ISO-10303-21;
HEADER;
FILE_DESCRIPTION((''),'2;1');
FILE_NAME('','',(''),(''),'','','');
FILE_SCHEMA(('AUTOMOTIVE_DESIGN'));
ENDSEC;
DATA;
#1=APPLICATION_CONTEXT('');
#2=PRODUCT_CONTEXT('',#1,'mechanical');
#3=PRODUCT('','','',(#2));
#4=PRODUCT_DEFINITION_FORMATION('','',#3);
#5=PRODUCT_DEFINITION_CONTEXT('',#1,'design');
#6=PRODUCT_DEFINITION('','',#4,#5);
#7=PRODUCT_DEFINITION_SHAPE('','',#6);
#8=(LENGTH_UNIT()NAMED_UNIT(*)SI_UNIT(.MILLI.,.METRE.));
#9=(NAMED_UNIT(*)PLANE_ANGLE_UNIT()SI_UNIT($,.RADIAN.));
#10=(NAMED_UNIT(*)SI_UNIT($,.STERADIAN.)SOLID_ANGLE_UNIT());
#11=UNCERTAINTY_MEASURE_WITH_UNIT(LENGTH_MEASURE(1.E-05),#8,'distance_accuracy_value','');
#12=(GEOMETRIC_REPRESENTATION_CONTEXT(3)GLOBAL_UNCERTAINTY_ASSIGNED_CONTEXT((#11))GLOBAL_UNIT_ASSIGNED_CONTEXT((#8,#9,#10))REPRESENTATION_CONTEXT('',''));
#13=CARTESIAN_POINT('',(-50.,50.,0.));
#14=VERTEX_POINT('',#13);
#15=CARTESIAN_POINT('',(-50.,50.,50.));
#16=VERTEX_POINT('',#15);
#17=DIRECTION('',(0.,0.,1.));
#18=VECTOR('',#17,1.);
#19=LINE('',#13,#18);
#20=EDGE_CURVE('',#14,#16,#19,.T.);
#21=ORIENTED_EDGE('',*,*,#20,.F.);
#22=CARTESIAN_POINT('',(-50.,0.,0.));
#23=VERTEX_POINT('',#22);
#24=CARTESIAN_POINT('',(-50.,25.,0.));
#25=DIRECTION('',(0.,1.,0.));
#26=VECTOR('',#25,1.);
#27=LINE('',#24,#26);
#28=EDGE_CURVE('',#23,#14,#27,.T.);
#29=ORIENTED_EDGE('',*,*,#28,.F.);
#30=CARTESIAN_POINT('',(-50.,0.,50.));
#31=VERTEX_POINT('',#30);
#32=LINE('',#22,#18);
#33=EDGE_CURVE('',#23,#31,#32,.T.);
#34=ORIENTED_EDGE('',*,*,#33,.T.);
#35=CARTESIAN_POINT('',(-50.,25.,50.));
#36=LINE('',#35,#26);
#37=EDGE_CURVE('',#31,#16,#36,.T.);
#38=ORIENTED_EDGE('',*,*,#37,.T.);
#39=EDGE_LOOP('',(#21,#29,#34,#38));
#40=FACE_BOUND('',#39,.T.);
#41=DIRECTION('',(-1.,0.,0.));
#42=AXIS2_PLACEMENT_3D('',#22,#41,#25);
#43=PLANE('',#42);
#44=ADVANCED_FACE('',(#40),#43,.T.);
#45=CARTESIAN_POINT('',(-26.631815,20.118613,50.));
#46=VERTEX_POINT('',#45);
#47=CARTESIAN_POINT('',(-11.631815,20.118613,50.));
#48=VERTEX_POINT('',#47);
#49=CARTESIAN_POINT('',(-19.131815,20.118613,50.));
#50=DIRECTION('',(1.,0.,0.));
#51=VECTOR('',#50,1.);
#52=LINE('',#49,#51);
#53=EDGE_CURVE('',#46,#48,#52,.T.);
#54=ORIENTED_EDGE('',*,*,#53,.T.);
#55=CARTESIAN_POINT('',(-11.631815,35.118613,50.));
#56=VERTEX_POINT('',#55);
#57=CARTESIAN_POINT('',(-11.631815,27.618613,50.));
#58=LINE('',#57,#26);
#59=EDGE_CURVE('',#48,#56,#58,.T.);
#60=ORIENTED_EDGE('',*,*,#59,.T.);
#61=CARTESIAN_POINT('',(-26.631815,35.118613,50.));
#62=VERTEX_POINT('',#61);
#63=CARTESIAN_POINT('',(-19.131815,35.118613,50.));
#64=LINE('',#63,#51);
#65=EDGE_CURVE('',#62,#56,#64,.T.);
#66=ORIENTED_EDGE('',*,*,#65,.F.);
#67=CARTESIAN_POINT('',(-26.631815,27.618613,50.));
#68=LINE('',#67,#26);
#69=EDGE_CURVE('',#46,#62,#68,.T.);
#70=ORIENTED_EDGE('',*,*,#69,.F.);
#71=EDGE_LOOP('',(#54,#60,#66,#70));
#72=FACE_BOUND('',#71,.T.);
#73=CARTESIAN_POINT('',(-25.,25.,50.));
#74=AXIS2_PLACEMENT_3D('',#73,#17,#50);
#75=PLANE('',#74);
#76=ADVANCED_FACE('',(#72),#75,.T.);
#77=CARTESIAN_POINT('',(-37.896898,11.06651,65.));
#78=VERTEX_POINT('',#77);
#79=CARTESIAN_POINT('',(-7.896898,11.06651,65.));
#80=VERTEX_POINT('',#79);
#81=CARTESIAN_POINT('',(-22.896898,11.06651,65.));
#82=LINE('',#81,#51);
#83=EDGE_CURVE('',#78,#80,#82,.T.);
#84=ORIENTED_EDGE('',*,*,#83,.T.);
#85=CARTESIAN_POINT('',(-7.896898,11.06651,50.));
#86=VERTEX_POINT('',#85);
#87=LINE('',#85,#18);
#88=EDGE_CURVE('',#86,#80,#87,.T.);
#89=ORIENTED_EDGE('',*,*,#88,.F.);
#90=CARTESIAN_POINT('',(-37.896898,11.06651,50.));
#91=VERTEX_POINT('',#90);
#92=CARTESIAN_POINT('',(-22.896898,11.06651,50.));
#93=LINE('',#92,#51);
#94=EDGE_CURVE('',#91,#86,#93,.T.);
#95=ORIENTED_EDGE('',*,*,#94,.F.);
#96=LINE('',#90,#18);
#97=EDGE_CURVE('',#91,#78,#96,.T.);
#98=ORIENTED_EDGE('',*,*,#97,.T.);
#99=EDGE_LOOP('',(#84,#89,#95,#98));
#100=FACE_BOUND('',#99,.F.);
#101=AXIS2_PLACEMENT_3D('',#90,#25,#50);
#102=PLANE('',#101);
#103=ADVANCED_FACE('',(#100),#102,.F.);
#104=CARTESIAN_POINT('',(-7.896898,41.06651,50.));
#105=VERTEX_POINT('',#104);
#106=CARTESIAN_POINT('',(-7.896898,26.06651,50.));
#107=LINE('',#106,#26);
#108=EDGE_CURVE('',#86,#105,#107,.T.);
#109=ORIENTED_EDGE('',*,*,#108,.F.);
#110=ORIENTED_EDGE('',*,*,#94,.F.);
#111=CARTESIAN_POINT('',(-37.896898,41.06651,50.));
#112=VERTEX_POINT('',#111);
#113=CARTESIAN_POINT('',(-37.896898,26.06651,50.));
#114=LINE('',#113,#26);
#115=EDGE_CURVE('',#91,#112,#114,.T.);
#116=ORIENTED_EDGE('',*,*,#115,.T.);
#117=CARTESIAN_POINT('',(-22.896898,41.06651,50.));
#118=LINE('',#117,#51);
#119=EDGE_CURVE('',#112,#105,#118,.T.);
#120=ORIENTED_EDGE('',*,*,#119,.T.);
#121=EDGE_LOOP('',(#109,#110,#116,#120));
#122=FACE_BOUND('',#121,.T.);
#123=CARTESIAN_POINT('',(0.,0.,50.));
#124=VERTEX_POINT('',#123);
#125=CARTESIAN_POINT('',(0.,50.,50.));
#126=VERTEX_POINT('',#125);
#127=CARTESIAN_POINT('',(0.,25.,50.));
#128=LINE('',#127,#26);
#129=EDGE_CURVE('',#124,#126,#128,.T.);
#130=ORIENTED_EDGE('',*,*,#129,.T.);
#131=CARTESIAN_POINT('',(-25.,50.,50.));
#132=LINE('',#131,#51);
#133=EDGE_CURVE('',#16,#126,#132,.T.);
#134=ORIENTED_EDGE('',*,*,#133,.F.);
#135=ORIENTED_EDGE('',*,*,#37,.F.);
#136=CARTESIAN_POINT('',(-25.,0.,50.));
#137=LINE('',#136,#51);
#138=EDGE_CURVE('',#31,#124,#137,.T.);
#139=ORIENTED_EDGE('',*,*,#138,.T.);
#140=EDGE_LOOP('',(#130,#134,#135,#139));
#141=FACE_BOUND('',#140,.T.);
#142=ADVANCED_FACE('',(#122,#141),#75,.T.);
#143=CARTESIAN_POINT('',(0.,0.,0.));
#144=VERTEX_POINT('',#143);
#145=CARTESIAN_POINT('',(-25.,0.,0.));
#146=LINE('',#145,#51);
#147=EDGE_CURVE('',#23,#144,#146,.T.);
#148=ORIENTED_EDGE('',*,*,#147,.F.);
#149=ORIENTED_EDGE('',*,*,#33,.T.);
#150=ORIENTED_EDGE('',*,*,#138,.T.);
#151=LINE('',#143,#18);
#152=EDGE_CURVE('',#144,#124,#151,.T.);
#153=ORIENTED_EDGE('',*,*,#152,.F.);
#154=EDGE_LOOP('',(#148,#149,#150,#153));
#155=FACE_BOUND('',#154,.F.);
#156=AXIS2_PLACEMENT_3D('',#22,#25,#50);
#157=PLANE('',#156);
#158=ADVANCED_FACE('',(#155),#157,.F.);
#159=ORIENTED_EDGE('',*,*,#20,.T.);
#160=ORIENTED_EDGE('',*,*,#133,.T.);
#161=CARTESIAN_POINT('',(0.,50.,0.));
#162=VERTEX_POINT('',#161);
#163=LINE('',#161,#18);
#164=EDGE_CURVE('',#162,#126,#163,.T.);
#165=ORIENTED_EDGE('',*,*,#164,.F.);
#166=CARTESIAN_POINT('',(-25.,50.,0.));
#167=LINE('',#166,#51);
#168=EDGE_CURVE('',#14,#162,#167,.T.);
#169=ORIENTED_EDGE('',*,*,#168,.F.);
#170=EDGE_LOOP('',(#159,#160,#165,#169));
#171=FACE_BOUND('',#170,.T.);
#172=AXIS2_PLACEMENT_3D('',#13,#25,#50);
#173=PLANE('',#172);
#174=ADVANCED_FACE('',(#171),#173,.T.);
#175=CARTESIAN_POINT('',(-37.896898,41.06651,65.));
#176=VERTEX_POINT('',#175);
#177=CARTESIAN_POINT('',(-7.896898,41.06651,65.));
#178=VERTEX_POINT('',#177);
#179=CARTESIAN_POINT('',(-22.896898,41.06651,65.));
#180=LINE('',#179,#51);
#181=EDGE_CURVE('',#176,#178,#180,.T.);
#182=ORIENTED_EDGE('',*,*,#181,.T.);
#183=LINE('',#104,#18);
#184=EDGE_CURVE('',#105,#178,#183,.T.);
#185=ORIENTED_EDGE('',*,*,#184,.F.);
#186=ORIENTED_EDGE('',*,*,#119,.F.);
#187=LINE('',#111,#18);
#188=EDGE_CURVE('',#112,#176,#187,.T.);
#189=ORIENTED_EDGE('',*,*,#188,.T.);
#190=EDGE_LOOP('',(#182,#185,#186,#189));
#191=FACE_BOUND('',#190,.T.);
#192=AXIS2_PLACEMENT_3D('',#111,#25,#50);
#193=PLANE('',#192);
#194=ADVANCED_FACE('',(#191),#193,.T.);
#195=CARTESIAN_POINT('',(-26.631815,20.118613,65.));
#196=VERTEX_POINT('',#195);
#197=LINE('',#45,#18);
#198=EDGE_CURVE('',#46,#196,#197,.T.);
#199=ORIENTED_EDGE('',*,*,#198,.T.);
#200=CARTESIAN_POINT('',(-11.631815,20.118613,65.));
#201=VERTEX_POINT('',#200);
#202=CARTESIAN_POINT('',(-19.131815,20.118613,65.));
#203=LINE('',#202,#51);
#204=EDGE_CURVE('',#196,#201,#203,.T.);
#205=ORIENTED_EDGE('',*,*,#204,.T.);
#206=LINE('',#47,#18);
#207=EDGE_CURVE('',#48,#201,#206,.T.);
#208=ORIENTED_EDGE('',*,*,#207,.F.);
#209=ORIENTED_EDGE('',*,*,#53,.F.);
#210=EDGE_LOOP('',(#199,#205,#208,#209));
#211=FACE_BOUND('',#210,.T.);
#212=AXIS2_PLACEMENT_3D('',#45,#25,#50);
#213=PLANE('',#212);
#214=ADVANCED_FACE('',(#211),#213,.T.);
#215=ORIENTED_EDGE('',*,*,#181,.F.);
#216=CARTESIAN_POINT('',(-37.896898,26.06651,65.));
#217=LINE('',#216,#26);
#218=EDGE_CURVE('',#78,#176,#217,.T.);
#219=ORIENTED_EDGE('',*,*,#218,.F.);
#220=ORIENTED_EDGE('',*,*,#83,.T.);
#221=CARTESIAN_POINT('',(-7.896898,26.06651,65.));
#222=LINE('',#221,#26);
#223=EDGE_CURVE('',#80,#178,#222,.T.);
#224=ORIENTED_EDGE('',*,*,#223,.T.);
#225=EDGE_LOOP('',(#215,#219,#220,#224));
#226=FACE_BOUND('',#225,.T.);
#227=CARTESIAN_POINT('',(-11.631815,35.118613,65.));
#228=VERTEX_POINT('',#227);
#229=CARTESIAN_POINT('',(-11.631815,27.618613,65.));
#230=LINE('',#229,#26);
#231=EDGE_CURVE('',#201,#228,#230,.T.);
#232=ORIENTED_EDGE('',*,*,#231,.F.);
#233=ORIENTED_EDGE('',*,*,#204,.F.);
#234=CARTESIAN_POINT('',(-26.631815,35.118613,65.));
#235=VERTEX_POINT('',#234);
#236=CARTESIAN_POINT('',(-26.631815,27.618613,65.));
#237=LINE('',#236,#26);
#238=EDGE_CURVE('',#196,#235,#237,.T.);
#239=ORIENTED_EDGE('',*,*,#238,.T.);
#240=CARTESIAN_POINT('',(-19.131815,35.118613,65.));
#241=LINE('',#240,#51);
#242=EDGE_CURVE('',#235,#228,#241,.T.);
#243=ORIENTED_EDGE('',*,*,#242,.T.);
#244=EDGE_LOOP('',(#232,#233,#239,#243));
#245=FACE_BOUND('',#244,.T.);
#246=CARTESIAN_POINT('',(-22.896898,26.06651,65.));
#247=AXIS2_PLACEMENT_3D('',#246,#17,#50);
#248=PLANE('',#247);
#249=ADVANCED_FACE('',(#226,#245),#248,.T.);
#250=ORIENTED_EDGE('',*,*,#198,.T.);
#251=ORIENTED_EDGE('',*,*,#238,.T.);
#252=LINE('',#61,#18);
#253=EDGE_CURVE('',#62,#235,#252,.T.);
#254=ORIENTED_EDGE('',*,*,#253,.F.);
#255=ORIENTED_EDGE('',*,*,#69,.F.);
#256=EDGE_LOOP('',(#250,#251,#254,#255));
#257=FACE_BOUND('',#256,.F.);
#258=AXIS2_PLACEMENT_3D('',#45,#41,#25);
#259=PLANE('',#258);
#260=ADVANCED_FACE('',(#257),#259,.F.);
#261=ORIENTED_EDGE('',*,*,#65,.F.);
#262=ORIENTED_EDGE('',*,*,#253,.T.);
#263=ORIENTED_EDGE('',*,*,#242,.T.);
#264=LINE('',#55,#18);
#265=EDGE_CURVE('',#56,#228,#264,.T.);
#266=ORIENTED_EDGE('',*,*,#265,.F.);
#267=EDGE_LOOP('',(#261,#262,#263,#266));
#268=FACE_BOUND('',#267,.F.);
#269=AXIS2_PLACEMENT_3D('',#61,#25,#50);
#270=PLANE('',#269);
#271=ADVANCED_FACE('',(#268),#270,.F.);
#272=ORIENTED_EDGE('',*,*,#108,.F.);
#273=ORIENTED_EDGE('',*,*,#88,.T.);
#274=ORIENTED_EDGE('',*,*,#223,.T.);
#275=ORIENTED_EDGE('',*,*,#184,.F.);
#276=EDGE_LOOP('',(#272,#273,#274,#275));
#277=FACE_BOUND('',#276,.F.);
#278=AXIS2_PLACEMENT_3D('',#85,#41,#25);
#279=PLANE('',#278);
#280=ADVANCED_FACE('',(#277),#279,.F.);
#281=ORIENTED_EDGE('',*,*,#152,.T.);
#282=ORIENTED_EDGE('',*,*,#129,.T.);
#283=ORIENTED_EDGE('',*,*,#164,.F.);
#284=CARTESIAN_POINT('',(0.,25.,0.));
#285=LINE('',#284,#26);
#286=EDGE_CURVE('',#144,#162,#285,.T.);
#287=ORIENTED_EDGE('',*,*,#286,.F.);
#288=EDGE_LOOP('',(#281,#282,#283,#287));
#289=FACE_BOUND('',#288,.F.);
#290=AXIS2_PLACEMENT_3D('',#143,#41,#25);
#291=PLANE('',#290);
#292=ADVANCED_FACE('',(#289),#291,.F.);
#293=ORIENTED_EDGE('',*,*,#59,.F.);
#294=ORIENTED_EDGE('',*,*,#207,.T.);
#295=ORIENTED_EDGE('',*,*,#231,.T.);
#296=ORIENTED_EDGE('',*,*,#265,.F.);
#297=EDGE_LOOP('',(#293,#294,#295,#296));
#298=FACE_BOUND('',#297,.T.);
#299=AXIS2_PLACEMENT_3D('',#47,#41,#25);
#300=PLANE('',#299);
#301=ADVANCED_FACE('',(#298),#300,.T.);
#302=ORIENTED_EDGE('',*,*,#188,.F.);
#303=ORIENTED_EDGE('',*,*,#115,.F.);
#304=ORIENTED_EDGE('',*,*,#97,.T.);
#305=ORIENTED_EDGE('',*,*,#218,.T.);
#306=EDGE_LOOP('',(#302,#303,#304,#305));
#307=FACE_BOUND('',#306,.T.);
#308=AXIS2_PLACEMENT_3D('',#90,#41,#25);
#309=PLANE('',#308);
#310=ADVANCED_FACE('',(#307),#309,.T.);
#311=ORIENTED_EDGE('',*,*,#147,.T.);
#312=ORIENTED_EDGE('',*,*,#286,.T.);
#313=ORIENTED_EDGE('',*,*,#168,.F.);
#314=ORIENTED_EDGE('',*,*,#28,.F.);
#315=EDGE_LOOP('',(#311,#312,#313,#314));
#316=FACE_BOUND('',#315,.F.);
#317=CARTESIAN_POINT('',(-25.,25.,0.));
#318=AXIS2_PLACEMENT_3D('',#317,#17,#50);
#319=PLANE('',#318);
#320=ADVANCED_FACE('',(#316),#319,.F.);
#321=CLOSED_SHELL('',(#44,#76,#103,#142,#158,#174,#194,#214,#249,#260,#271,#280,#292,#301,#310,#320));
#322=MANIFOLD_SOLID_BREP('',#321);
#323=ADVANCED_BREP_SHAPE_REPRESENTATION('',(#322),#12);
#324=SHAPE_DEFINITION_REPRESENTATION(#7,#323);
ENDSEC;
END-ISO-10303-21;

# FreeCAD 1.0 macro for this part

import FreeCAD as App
import Part
import Sketcher

V = App.Vector
Q = App.Units.Quantity

doc = App.newDocument("Part")
body = doc.addObject("PartDesign::Body", "Body")

# Sketch on XY plane
sketch1 = doc.addObject("Sketcher::SketchObject", "Sketch")
body.addObject(sketch1)
sketch1.AttachmentSupport = (doc.XY_Plane, [""])
sketch1.MapMode = "FlatFace"
sketch1.addGeometry([
    Part.LineSegment(V(-50, 50, 0), V(-50, 0, 0)),
    Part.LineSegment(V(-50, 0, 0), V(0, 0, 0)),
    Part.LineSegment(V(0, 0, 0), V(0, 50, 0)),
    Part.LineSegment(V(0, 50, 0), V(-50, 50, 0)),
], False)
sketch1.addConstraint([
    Sketcher.Constraint("Coincident", 0, 2, 1, 1),
    Sketcher.Constraint("Coincident", 1, 2, 2, 1),
    Sketcher.Constraint("Coincident", 2, 2, 3, 1),
    Sketcher.Constraint("Coincident", 3, 2, 0, 1),
    Sketcher.Constraint("Vertical", 0),
    Sketcher.Constraint("Horizontal", 1),
    Sketcher.Constraint("Vertical", 2),
    Sketcher.Constraint("Horizontal", 3),
    Sketcher.Constraint("Coincident", 1, 2, -1, 1),
    Sketcher.Constraint("Equal", 3, 0),
    Sketcher.Constraint("DistanceX", 1, 1, 1, 2, Q("50 mm")),
])
pad1 = doc.addObject("PartDesign::Pad", "Pad")
body.addObject(pad1)
pad1.Profile = sketch1
pad1.Length = 50

# Sketch on XY plane
sketch2 = doc.addObject("Sketcher::SketchObject", "Sketch001")
body.addObject(sketch2)
sketch2.AttachmentSupport = (doc.XY_Plane, [""])
sketch2.MapMode = "FlatFace"
sketch2.AttachmentOffset = App.Placement(V(0, 0, 50), App.Rotation())
sketch2.addGeometry([
    Part.LineSegment(V(-38, 41, 0), V(-38, 11, 0)),  # 0
    Part.LineSegment(V(-38, 11, 0), V(-8, 11, 0)),  # 1
    Part.LineSegment(V(-8, 11, 0), V(-8, 41, 0)),  # 2
    Part.LineSegment(V(-8, 41, 0), V(-38, 41, 0)),  # 3
    Part.LineSegment(V(-12, 20, 0), V(-27, 20, 0)),  # 4
    Part.LineSegment(V(-27, 20, 0), V(-27, 35, 0)),  # 5
    Part.LineSegment(V(-27, 35, 0), V(-12, 35, 0)),  # 6
    Part.LineSegment(V(-12, 35, 0), V(-12, 20, 0)),  # 7
], False)
sketch2.addConstraint([
    Sketcher.Constraint("Coincident", 0, 2, 1, 1),
    Sketcher.Constraint("Coincident", 1, 2, 2, 1),
    Sketcher.Constraint("Coincident", 2, 2, 3, 1),
    Sketcher.Constraint("Coincident", 3, 2, 0, 1),
    Sketcher.Constraint("Coincident", 4, 2, 5, 1),
    Sketcher.Constraint("Coincident", 5, 2, 6, 1),
    Sketcher.Constraint("Coincident", 6, 2, 7, 1),
    Sketcher.Constraint("Coincident", 7, 2, 4, 1),
    Sketcher.Constraint("Vertical", 0),
    Sketcher.Constraint("Horizontal", 1),
    Sketcher.Constraint("Vertical", 2),
    Sketcher.Constraint("Horizontal", 3),
    Sketcher.Constraint("Horizontal", 4),
    Sketcher.Constraint("Vertical", 5),
    Sketcher.Constraint("Horizontal", 6),
    Sketcher.Constraint("Vertical", 7),
    Sketcher.Constraint("Equal", 3, 0),
    Sketcher.Constraint("Equal", 6, 5),
    Sketcher.Constraint("DistanceX", 1, 1, 1, 2, Q("30 mm")),
    Sketcher.Constraint("DistanceX", 4, 2, 4, 1, Q("15 mm")),
    Sketcher.Constraint("DistanceX", 1, 2, -1, 1, Q("7.896898 mm")),
    Sketcher.Constraint("DistanceY", -1, 1, 0, 2, Q("11.06651 mm")),
    Sketcher.Constraint("DistanceX", 4, 2, -1, 1, Q("26.631815 mm")),
    Sketcher.Constraint("DistanceY", -1, 1, 4, 2, Q("20.118613 mm")),
])
pad2 = doc.addObject("PartDesign::Pad", "Pad001")
body.addObject(pad2)
pad2.Profile = sketch2
pad2.Length = 15

# Sketch on XY plane
sketch3 = doc.addObject("Sketcher::SketchObject", "Sketch002")
body.addObject(sketch3)
sketch3.AttachmentSupport = (doc.XY_Plane, [""])
sketch3.MapMode = "FlatFace"
sketch3.AttachmentOffset = App.Placement(V(0, 0, 50), App.Rotation())
sketch3.addGeometry([
    Part.LineSegment(V(-38, 41, 0), V(-38, 11, 0)),  # 0
    Part.LineSegment(V(-38, 11, 0), V(-8, 11, 0)),  # 1
    Part.LineSegment(V(-8, 11, 0), V(-8, 41, 0)),  # 2
    Part.LineSegment(V(-8, 41, 0), V(-38, 41, 0)),  # 3
    Part.LineSegment(V(-12, 20, 0), V(-27, 20, 0)),  # 4
    Part.LineSegment(V(-27, 20, 0), V(-27, 35, 0)),  # 5
    Part.LineSegment(V(-27, 35, 0), V(-12, 35, 0)),  # 6
    Part.LineSegment(V(-12, 35, 0), V(-12, 20, 0)),  # 7
], False)
sketch3.addConstraint([
    Sketcher.Constraint("Coincident", 0, 2, 1, 1),
    Sketcher.Constraint("Coincident", 1, 2, 2, 1),
    Sketcher.Constraint("Coincident", 2, 2, 3, 1),
    Sketcher.Constraint("Coincident", 3, 2, 0, 1),
    Sketcher.Constraint("Coincident", 4, 2, 5, 1),
    Sketcher.Constraint("Coincident", 5, 2, 6, 1),
    Sketcher.Constraint("Coincident", 6, 2, 7, 1),
    Sketcher.Constraint("Coincident", 7, 2, 4, 1),
    Sketcher.Constraint("Vertical", 0),
    Sketcher.Constraint("Horizontal", 1),
    Sketcher.Constraint("Vertical", 2),
    Sketcher.Constraint("Horizontal", 3),
    Sketcher.Constraint("Horizontal", 4),
    Sketcher.Constraint("Vertical", 5),
    Sketcher.Constraint("Horizontal", 6),
    Sketcher.Constraint("Vertical", 7),
    Sketcher.Constraint("Equal", 3, 0),
    Sketcher.Constraint("Equal", 6, 5),
    Sketcher.Constraint("DistanceX", 1, 1, 1, 2, Q("30 mm")),
    Sketcher.Constraint("DistanceX", 4, 2, 4, 1, Q("15 mm")),
    Sketcher.Constraint("DistanceX", 1, 2, -1, 1, Q("7.896898 mm")),
    Sketcher.Constraint("DistanceY", -1, 1, 0, 2, Q("11.06651 mm")),
    Sketcher.Constraint("DistanceX", 4, 2, -1, 1, Q("26.631815 mm")),
    Sketcher.Constraint("DistanceY", -1, 1, 4, 2, Q("20.118613 mm")),
])
pad3 = doc.addObject("PartDesign::Pad", "Pad002")
body.addObject(pad3)
pad3.Profile = sketch3
pad3.Length = 15

doc.recompute()
